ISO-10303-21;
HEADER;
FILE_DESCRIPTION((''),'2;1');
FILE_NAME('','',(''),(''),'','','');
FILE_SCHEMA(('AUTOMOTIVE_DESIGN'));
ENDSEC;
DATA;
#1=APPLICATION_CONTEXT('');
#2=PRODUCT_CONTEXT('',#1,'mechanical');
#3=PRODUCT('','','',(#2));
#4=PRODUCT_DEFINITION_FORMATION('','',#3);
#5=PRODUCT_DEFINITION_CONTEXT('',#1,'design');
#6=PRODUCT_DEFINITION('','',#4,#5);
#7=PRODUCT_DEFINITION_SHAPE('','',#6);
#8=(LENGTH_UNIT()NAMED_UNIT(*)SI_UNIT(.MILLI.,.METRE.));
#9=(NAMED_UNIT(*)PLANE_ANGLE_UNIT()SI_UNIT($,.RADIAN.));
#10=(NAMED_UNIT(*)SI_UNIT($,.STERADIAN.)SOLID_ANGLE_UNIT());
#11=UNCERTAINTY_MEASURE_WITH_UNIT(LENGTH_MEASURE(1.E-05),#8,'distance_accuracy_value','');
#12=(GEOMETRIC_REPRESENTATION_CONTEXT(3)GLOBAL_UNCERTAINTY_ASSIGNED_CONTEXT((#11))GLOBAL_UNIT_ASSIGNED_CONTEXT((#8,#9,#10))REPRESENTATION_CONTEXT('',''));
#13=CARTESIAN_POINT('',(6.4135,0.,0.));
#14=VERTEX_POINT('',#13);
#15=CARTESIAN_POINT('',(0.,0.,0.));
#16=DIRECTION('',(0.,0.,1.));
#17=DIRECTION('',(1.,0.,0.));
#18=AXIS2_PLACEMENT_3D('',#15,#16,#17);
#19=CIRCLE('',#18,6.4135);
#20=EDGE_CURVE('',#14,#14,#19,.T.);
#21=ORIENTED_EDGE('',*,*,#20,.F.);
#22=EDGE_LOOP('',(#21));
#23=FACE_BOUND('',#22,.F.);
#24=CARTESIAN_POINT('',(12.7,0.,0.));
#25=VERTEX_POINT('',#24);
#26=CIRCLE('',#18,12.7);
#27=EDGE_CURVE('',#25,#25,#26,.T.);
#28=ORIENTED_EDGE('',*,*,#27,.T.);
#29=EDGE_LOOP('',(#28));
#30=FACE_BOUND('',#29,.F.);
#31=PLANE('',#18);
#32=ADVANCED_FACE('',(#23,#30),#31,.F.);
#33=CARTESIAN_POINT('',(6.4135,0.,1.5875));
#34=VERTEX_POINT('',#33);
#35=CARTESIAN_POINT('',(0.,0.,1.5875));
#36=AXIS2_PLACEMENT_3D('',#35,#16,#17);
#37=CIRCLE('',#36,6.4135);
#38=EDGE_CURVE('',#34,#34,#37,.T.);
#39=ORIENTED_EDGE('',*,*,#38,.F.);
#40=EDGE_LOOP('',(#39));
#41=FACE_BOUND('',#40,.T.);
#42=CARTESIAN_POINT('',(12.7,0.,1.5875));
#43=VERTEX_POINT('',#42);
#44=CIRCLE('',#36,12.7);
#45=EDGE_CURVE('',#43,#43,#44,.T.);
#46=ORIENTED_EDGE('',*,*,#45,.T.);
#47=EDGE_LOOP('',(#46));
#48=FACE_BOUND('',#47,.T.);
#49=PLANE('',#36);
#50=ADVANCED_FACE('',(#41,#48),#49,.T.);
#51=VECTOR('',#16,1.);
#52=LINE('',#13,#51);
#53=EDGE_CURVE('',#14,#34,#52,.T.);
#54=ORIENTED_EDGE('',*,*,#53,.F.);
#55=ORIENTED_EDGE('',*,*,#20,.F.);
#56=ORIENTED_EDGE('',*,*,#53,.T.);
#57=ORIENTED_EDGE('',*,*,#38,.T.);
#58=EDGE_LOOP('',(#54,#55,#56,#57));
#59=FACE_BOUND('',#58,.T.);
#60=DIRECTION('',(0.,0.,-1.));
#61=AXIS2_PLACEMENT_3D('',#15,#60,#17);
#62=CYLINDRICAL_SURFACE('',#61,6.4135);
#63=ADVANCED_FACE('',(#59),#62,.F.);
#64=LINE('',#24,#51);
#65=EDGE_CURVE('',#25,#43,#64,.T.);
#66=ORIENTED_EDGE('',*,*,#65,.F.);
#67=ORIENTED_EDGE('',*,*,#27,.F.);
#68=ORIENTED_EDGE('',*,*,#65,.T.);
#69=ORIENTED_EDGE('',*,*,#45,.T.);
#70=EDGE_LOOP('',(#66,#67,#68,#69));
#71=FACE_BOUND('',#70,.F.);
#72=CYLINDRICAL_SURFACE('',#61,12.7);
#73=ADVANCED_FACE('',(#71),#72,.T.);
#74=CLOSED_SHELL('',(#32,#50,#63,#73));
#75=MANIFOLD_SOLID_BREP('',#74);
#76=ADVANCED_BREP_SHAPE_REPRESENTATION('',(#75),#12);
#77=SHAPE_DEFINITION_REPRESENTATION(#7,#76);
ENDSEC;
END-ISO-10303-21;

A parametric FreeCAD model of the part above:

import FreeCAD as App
import Part
import Sketcher
from FreeCAD import Vector
Q = App.Units.Quantity

doc = App.newDocument("Part")
body = doc.addObject("PartDesign::Body", "Body")

# Sketch on XY plane
sketch1 = body.newObject("Sketcher::SketchObject", "Sketch")
sketch1.AttachmentSupport = (doc.getObject("XY_Plane"), [""])
sketch1.MapMode = "FlatFace"
sketch1.addGeometry([
    Part.Circle(Vector(0, 0, 0), Vector(0, 0, 1), 13),
    Part.Circle(Vector(0, 0, 0), Vector(0, 0, 1), 6),
], False)
sketch1.addConstraint([
    Sketcher.Constraint("Coincident", 0, 3, -1, 1),
    Sketcher.Constraint("Coincident", 1, 3, -1, 1),
    Sketcher.Constraint("Diameter", 0, Q("1 in")),
    Sketcher.Constraint("Diameter", 1, Q("0.505 in")),
])
pad1 = body.newObject("PartDesign::Pad", "Pad")
pad1.Profile = sketch1
pad1.Length = Q("0.0625 in")

doc.recompute()
